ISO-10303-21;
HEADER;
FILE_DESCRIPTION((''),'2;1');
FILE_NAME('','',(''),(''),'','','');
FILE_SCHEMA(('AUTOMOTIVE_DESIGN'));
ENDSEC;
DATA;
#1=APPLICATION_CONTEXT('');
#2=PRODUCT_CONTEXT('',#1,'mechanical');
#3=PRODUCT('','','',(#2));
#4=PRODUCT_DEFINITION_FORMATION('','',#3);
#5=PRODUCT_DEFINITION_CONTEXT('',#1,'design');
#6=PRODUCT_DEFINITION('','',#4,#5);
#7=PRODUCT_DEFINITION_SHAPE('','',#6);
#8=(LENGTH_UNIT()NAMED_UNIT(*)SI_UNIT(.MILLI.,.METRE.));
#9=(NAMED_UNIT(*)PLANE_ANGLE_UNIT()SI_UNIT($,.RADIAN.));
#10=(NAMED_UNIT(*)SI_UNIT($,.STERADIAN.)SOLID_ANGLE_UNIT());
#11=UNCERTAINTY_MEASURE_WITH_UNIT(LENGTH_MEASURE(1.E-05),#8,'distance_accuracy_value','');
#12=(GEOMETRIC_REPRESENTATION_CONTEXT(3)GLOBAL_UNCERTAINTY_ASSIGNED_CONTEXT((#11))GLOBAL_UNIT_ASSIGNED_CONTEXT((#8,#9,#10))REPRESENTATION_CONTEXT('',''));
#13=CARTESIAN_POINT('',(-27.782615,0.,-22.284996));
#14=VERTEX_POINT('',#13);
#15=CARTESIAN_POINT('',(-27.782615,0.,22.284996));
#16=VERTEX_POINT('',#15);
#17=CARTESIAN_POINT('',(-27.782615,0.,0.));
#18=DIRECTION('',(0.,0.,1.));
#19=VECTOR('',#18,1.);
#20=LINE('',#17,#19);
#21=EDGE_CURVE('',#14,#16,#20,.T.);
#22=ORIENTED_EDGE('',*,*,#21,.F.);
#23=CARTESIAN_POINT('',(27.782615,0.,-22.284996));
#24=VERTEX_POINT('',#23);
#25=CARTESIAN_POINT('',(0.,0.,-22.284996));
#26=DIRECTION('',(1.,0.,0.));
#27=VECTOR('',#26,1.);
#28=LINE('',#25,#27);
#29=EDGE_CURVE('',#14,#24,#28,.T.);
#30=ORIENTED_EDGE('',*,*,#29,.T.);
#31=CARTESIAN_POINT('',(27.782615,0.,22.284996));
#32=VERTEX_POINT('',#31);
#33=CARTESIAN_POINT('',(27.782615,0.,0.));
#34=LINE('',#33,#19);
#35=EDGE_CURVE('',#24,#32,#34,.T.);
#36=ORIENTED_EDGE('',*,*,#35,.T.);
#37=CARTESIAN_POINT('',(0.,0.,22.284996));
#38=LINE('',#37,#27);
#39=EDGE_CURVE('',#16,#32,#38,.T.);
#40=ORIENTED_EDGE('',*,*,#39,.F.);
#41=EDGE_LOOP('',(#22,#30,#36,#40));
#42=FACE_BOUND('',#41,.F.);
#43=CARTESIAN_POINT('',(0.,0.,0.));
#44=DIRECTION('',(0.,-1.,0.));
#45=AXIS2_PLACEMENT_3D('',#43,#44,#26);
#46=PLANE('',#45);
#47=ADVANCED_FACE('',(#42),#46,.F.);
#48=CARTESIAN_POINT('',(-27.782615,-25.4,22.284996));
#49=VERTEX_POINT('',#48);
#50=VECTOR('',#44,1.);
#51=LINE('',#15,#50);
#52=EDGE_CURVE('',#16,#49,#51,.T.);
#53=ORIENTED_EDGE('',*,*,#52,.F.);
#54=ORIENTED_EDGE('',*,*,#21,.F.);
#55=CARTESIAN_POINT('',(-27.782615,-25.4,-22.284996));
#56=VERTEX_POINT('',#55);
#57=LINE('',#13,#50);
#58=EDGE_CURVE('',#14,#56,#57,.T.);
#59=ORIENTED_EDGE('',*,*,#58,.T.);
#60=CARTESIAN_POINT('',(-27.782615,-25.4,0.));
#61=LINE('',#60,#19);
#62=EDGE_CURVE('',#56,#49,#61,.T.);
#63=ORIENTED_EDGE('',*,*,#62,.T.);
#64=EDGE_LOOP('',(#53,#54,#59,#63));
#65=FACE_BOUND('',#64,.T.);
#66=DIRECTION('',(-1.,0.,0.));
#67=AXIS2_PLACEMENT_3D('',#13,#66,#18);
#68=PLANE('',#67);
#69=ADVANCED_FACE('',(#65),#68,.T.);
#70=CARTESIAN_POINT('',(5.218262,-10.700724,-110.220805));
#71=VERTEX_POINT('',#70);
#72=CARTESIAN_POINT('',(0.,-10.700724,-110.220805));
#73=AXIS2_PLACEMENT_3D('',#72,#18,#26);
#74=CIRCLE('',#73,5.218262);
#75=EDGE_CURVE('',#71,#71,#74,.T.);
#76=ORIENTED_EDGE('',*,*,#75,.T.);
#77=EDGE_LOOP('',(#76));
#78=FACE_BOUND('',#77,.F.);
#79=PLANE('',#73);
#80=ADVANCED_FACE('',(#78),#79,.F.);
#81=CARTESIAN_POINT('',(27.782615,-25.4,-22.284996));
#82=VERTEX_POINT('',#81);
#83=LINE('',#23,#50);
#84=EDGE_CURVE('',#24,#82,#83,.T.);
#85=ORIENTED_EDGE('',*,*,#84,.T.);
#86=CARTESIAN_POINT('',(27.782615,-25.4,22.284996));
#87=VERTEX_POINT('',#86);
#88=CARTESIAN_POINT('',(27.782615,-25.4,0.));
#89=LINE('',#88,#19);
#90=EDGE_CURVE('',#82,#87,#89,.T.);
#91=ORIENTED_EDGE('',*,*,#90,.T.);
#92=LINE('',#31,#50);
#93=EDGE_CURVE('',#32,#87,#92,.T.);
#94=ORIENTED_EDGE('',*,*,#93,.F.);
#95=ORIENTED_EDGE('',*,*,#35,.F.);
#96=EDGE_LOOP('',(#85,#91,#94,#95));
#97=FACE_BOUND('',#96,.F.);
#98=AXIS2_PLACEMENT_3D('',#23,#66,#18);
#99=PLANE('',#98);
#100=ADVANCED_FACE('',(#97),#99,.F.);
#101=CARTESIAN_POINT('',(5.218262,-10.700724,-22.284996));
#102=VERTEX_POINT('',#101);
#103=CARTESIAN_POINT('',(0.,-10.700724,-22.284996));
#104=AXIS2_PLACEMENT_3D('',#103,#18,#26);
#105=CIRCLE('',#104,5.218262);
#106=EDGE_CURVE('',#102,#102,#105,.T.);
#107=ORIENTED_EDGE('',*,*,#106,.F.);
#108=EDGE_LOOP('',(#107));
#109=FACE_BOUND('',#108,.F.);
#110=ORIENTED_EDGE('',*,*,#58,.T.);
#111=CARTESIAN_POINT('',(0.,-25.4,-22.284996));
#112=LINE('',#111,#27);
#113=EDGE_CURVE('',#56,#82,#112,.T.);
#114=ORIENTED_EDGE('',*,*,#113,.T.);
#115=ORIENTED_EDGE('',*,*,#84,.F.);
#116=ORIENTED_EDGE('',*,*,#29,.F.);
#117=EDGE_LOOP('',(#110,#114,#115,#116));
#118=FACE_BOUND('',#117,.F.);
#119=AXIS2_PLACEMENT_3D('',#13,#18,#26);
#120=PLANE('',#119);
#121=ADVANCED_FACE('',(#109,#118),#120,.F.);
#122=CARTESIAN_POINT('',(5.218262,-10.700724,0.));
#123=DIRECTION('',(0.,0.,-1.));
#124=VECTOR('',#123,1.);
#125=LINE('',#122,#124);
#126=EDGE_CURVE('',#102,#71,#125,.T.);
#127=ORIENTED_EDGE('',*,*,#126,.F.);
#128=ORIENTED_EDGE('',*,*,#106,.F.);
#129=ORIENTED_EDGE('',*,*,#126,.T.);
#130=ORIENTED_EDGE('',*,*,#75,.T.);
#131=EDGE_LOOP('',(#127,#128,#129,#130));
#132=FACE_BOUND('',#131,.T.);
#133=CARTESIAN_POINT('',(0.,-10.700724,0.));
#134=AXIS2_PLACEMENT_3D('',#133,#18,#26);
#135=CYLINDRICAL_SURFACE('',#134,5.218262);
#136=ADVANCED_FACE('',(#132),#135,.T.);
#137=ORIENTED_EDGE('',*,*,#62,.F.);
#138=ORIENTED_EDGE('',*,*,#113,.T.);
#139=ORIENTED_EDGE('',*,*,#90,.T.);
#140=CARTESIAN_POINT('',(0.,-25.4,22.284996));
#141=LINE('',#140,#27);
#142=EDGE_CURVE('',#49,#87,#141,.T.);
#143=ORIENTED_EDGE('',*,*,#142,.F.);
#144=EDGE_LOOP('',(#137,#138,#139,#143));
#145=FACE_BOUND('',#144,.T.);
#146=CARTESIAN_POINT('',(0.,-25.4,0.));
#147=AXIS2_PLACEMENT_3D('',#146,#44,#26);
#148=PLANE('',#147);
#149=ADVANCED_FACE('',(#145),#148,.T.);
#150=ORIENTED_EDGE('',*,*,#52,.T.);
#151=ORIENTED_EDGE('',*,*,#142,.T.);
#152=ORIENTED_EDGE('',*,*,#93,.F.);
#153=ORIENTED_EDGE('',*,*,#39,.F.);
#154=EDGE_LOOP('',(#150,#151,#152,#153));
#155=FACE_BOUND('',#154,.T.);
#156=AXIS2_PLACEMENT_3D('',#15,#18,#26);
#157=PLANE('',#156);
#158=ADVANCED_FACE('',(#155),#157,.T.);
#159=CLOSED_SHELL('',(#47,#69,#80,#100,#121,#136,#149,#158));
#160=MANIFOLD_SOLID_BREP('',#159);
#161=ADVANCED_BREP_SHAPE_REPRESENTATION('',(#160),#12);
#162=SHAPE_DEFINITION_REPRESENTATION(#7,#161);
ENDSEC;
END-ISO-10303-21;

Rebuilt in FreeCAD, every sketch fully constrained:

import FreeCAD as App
import Part
import Sketcher
Q = App.Units.Quantity


def add_polygon(sketch, points):
    """Adds a closed chain of lines whose ends are joined by coincident constraints."""
    first, n = sketch.GeometryCount, len(points)
    for a, b in zip(points, points[1:] + points[:1]):
        sketch.addGeometry(Part.LineSegment(App.Vector(*a, 0), App.Vector(*b, 0)), False)
    for i in range(n):
        sketch.addConstraint(Sketcher.Constraint("Coincident", first + i, 2, first + (i + 1) % n, 1))

doc = App.newDocument("Part")
body = doc.addObject("PartDesign::Body", "Body")

# Sketch on XZ plane
sketch1 = body.newObject("Sketcher::SketchObject", "Sketch")
sketch1.AttachmentSupport = (doc.getObject("XZ_Plane"), [""])
sketch1.MapMode = "FlatFace"
add_polygon(sketch1, [(-28, 22), (-28, -22), (28, -22), (28, 22)])  # lines 0-3
sketch1.addConstraint(Sketcher.Constraint("Vertical", 0))
sketch1.addConstraint(Sketcher.Constraint("Horizontal", 1))
sketch1.addConstraint(Sketcher.Constraint("Vertical", 2))
sketch1.addConstraint(Sketcher.Constraint("Horizontal", 3))
sketch1.addConstraint(Sketcher.Constraint("Symmetric", 0, 2, 2, 2, -1, 1))
sketch1.addConstraint(Sketcher.Constraint("DistanceX", 1, 1, 1, 2, Q("55.56523 mm")))
sketch1.addConstraint(Sketcher.Constraint("DistanceY", 0, 2, 0, 1, Q("44.569992 mm")))
pad1 = body.newObject("PartDesign::Pad", "Pad")
pad1.Profile = sketch1
pad1.Length = Q("1 in")

# Sketch on XY plane
sketch2 = body.newObject("Sketcher::SketchObject", "Sketch001")
sketch2.AttachmentSupport = (doc.getObject("XY_Plane"), [""])
sketch2.MapMode = "FlatFace"
sketch2.addGeometry(Part.Circle(App.Vector(0, -11, 0), App.Vector(0, 0, 1), 5), False)
sketch2.addConstraint(Sketcher.Constraint("PointOnObject", 0, 3, -2))
sketch2.addConstraint(Sketcher.Constraint("Diameter", 0, Q("10.436524 mm")))
sketch2.addConstraint(Sketcher.Constraint("DistanceY", 0, 3, -1, 1, Q("10.700724 mm")))
pad2 = body.newObject("PartDesign::Pad", "Pad001")
pad2.Profile = sketch2
pad2.Length = 110.220805
pad2.Reversed = True

doc.recompute()
